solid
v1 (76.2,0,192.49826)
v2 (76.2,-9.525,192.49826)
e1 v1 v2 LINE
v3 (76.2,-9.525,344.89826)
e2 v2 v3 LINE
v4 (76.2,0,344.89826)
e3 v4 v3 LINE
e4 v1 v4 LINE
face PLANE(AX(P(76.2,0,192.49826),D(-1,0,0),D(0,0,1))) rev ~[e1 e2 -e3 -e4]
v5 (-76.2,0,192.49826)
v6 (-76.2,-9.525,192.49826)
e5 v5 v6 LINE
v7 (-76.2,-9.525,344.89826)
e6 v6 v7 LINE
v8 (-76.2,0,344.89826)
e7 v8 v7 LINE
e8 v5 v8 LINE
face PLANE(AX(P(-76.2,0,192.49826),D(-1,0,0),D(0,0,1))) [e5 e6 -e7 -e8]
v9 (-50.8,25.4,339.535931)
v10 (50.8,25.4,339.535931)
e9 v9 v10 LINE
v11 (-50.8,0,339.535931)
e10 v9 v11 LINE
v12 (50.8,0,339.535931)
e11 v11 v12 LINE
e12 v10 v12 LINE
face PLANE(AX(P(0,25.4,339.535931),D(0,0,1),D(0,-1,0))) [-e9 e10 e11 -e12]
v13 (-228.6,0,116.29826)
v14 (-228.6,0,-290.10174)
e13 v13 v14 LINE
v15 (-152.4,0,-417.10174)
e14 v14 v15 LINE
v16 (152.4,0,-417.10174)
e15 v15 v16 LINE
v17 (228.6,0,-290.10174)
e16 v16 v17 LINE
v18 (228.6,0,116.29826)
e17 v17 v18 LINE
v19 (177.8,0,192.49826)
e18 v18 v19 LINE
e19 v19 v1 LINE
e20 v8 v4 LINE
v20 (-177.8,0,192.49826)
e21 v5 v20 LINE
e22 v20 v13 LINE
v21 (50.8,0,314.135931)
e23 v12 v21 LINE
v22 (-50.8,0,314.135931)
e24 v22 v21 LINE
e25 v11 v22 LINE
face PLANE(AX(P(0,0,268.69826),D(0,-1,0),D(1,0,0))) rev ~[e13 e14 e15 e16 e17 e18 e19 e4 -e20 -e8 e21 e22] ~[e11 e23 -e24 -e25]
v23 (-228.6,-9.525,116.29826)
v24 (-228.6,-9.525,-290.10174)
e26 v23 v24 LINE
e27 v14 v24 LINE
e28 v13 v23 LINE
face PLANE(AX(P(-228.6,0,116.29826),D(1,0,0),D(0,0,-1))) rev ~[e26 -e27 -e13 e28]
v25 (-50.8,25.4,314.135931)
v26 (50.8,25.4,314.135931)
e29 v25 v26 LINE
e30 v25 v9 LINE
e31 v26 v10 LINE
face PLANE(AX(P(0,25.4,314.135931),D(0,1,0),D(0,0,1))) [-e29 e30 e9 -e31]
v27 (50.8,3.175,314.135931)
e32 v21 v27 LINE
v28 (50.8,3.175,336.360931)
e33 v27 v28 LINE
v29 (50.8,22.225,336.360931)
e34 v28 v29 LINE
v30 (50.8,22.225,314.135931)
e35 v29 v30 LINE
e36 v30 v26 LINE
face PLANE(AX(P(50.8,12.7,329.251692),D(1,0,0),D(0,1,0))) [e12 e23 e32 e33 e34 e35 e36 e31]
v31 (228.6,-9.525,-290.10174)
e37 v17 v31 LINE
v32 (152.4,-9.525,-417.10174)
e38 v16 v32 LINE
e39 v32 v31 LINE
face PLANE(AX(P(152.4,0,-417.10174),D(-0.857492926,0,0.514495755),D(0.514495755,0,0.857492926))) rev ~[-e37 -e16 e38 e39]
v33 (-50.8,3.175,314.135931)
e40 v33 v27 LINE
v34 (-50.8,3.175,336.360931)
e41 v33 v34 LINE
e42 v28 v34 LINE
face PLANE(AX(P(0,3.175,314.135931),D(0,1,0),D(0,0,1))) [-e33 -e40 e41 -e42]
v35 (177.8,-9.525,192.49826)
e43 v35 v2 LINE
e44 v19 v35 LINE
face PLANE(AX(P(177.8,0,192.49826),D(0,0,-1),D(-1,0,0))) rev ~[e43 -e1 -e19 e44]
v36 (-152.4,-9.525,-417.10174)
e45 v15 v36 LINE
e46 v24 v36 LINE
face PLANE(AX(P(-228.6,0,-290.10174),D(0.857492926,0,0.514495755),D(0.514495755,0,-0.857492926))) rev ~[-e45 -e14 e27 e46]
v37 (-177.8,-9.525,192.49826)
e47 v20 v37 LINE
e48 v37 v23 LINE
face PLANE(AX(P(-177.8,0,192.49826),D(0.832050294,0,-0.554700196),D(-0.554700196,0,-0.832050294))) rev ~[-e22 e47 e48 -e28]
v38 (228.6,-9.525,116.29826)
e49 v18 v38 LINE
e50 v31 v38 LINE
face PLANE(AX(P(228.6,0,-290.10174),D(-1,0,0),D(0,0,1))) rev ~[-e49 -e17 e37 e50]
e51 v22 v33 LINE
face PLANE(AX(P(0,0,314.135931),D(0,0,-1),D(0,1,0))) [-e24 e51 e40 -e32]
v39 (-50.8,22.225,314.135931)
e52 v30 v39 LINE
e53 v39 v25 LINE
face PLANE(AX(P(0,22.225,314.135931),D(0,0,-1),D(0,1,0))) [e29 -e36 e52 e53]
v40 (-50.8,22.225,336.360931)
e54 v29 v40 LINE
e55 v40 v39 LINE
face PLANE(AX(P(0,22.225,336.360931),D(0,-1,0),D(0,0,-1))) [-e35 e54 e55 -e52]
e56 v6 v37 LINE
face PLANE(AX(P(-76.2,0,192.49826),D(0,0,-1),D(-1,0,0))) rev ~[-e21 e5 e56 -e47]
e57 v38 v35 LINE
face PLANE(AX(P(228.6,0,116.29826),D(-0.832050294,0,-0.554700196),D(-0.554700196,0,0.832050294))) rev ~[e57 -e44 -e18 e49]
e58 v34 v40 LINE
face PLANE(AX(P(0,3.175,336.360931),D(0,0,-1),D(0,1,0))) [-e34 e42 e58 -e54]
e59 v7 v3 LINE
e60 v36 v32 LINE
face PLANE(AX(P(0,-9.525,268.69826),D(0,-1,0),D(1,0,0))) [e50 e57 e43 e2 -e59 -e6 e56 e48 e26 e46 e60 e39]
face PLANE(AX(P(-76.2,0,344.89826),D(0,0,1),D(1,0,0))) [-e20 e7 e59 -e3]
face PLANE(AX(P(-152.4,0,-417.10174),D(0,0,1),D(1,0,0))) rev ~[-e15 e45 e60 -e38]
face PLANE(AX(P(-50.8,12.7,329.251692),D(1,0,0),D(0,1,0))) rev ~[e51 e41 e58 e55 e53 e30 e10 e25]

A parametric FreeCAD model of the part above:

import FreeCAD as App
import Part
import Sketcher

V = App.Vector
Q = App.Units.Quantity

doc = App.newDocument("Part")
body = doc.addObject("PartDesign::Body", "Body")

sketch1 = doc.addObject("Sketcher::SketchObject", "Sketch")
body.addObject(sketch1)
sketch1.AttachmentSupport = (doc.XZ_Plane, [""])
sketch1.MapMode = "FlatFace"
sketch1.addGeometry([
    Part.LineSegment(V(-76.2, 344.89826, 0), V(-76.2, 192.49826, 0)),
    Part.LineSegment(V(-76.2, 192.49826, 0), V(-177.8, 192.49826, 0)),
    Part.LineSegment(V(-177.8, 192.49826, 0), V(-228.6, 116.29826, 0)),
    Part.LineSegment(V(-228.6, 116.29826, 0), V(-228.6, -290.10174, 0)),
    Part.LineSegment(V(-228.6, -290.10174, 0), V(-152.4, -417.10174, 0)),
    Part.LineSegment(V(-152.4, -417.10174, 0), V(152.4, -417.10174, 0)),
    Part.LineSegment(V(152.4, -417.10174, 0), V(228.6, -290.10174, 0)),
    Part.LineSegment(V(228.6, -290.10174, 0), V(228.6, 116.29826, 0)),
    Part.LineSegment(V(228.6, 116.29826, 0), V(177.8, 192.49826, 0)),
    Part.LineSegment(V(177.8, 192.49826, 0), V(76.2, 192.49826, 0)),
    Part.LineSegment(V(76.2, 192.49826, 0), V(76.2, 344.89826, 0)),
    Part.LineSegment(V(76.2, 344.89826, 0), V(-76.2, 344.89826, 0)),
], False)
sketch1.addConstraint([
    Sketcher.Constraint("Coincident", 0, 2, 1, 1),
    Sketcher.Constraint("Coincident", 1, 2, 2, 1),
    Sketcher.Constraint("Coincident", 2, 2, 3, 1),
    Sketcher.Constraint("Coincident", 3, 2, 4, 1),
    Sketcher.Constraint("Coincident", 4, 2, 5, 1),
    Sketcher.Constraint("Coincident", 5, 2, 6, 1),
    Sketcher.Constraint("Coincident", 6, 2, 7, 1),
    Sketcher.Constraint("Coincident", 7, 2, 8, 1),
    Sketcher.Constraint("Coincident", 8, 2, 9, 1),
    Sketcher.Constraint("Coincident", 9, 2, 10, 1),
    Sketcher.Constraint("Coincident", 10, 2, 11, 1),
    Sketcher.Constraint("Coincident", 11, 2, 0, 1),
    Sketcher.Constraint("Vertical", 0),
    Sketcher.Constraint("Horizontal", 1),
    Sketcher.Constraint("Vertical", 3),
    Sketcher.Constraint("Horizontal", 5),
    Sketcher.Constraint("Vertical", 7),
    Sketcher.Constraint("Horizontal", 9),
    Sketcher.Constraint("Vertical", 10),
    Sketcher.Constraint("Horizontal", 11),
    Sketcher.Constraint("Symmetric", 3, 2, 6, 2, -2),
    Sketcher.Constraint("Symmetric", 1, 2, 8, 2, -2),
    Sketcher.Constraint("Horizontal", 2, 2, 7, 2),
    Sketcher.Constraint("Equal", 1, 9),
    Sketcher.Constraint("Equal", 11, 0),
    Sketcher.Constraint("Equal", 4, 6),
    Sketcher.Constraint("DistanceX", 1, 2, 1, 1, Q("4 in")),
    Sketcher.Constraint("DistanceX", 5, 1, 5, 2, Q("12 in")),
    Sketcher.Constraint("DistanceX", 11, 2, 11, 1, Q("6 in")),
    Sketcher.Constraint("DistanceY", 3, 2, 3, 1, Q("16 in")),
    Sketcher.Constraint("DistanceX", 2, 2, -1, 1, Q("9 in")),
    Sketcher.Constraint("DistanceY", 2, 2, 1, 2, Q("3 in")),
    Sketcher.Constraint("DistanceY", 4, 2, 3, 2, Q("5 in")),
    Sketcher.Constraint("DistanceY", -1, 1, 0, 2, Q("192.49826 mm")),
])
pad1 = doc.addObject("PartDesign::Pad", "Pad")
body.addObject(pad1)
pad1.Profile = sketch1
pad1.Length = Q("0.375 in")

sketch2 = doc.addObject("Sketcher::SketchObject", "Sketch001")
body.addObject(sketch2)
sketch2.AttachmentSupport = (doc.YZ_Plane, [""])
sketch2.MapMode = "FlatFace"
sketch2.addGeometry([
    Part.LineSegment(V(22.225, 314.135931, 0), V(25.4, 314.135931, 0)),
    Part.LineSegment(V(25.4, 314.135931, 0), V(25.4, 339.535931, 0)),
    Part.LineSegment(V(25.4, 339.535931, 0), V(0, 339.535931, 0)),
    Part.LineSegment(V(0, 339.535931, 0), V(0, 314.135931, 0)),
    Part.LineSegment(V(0, 314.135931, 0), V(3.175, 314.135931, 0)),
    Part.LineSegment(V(3.175, 314.135931, 0), V(3.175, 336.360931, 0)),
    Part.LineSegment(V(3.175, 336.360931, 0), V(22.225, 336.360931, 0)),
    Part.LineSegment(V(22.225, 336.360931, 0), V(22.225, 314.135931, 0)),
], False)
sketch2.addConstraint([
    Sketcher.Constraint("Coincident", 0, 2, 1, 1),
    Sketcher.Constraint("Coincident", 1, 2, 2, 1),
    Sketcher.Constraint("Coincident", 2, 2, 3, 1),
    Sketcher.Constraint("Coincident", 3, 2, 4, 1),
    Sketcher.Constraint("Coincident", 4, 2, 5, 1),
    Sketcher.Constraint("Coincident", 5, 2, 6, 1),
    Sketcher.Constraint("Coincident", 6, 2, 7, 1),
    Sketcher.Constraint("Coincident", 7, 2, 0, 1),
    Sketcher.Constraint("Horizontal", 0),
    Sketcher.Constraint("Vertical", 1),
    Sketcher.Constraint("Horizontal", 2),
    Sketcher.Constraint("Vertical", 3),
    Sketcher.Constraint("Horizontal", 4),
    Sketcher.Constraint("Vertical", 5),
    Sketcher.Constraint("Horizontal", 6),
    Sketcher.Constraint("Vertical", 7),
    Sketcher.Constraint("PointOnObject", 2, 2, -2),
    Sketcher.Constraint("Horizontal", 0, 2, 3, 2),
    Sketcher.Constraint("Equal", 0, 4),
    Sketcher.Constraint("Equal", 2, 1),
    Sketcher.Constraint("DistanceX", 2, 2, 2, 1, Q("1 in")),
    Sketcher.Constraint("DistanceX", 6, 1, 6, 2, Q("0.75 in")),
    Sketcher.Constraint("DistanceY", 5, 1, 5, 2, Q("0.875 in")),
    Sketcher.Constraint("DistanceY", -1, 1, 0, 2, Q("314.135931 mm")),
])
pad2 = doc.addObject("PartDesign::Pad", "Pad001")
body.addObject(pad2)
pad2.Profile = sketch2
pad2.Type = "TwoLengths"
pad2.Length = Q("2 in")
pad2.Length2 = Q("2 in")

doc.recompute()
